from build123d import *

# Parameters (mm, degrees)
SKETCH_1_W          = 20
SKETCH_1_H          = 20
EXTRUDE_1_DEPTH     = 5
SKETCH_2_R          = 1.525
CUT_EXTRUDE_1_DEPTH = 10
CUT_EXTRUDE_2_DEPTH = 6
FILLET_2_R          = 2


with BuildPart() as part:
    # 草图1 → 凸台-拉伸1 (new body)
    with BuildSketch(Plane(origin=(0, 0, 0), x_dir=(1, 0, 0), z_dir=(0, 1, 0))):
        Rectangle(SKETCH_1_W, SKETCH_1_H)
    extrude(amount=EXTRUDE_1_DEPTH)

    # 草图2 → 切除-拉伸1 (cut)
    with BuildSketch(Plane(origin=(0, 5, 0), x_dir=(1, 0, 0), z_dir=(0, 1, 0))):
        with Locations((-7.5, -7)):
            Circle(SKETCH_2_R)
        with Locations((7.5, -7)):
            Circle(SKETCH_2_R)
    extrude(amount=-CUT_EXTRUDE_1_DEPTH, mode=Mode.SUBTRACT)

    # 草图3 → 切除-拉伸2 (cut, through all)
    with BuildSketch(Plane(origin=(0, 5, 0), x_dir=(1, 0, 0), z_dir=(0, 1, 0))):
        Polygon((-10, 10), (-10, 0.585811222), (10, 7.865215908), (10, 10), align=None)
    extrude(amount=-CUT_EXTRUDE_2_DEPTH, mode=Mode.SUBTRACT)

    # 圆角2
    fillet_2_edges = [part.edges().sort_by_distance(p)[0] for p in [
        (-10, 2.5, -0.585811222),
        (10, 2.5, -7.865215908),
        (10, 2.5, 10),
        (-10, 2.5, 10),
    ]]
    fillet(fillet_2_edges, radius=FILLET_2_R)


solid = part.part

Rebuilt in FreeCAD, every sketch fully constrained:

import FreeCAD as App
import Part
import Sketcher
from FreeCAD import Vector
Q = App.Units.Quantity


def edges_at(feature, points):
    """Names of the edges that pass closest to the given points."""
    edges = feature.Shape.Edges
    near = lambda p: min(range(len(edges)), key=lambda i: edges[i].distToShape(Part.Vertex(*p))[0])
    return sorted({f"Edge{near(p) + 1}" for p in points})


def add_polygon(sketch, points):
    """Adds a closed chain of lines whose ends are joined by coincident constraints."""
    first, n = sketch.GeometryCount, len(points)
    for a, b in zip(points, points[1:] + points[:1]):
        sketch.addGeometry(Part.LineSegment(App.Vector(*a, 0), App.Vector(*b, 0)), False)
    for i in range(n):
        sketch.addConstraint(Sketcher.Constraint("Coincident", first + i, 2, first + (i + 1) % n, 1))

doc = App.newDocument("Part")
body = doc.addObject("PartDesign::Body", "Body")

sketch1 = body.newObject("Sketcher::SketchObject", "Sketch")
sketch1.AttachmentSupport = (doc.getObject("XZ_Plane"), [""])
sketch1.MapMode = "FlatFace"
add_polygon(sketch1, [(-10, -10), (-10, 10), (10, 10), (10, -10)])
sketch1.addConstraint(Sketcher.Constraint("Vertical", 0))
sketch1.addConstraint(Sketcher.Constraint("Horizontal", 1))
sketch1.addConstraint(Sketcher.Constraint("Vertical", 2))
sketch1.addConstraint(Sketcher.Constraint("Horizontal", 3))
sketch1.addConstraint(Sketcher.Constraint("Symmetric", 0, 2, 2, 2, -1, 1))
sketch1.addConstraint(Sketcher.Constraint("Equal", 3, 0))
sketch1.addConstraint(Sketcher.Constraint("DistanceX", 1, 1, 1, 2, 20.0))
pad1 = body.newObject("PartDesign::Pad", "Pad")
pad1.Profile = sketch1
pad1.Length = 5
pad1.Reversed = True

sketch2 = body.newObject("Sketcher::SketchObject", "Sketch001")
sketch2.AttachmentSupport = (doc.getObject("XZ_Plane"), [""])
sketch2.MapMode = "FlatFace"
sketch2.AttachmentOffset = App.Placement(Vector(0, 0, -5), App.Rotation())
sketch2.addGeometry(Part.Circle(Vector(-7.5, 7, 0), Vector(0, 0, 1), 1.525), False)
sketch2.addGeometry(Part.Circle(Vector(7.5, 7, 0), Vector(0, 0, 1), 1.525), False)
sketch2.addConstraint(Sketcher.Constraint("Equal", 0, 1))
sketch2.addConstraint(Sketcher.Constraint("Symmetric", 0, 3, 1, 3, -2))
sketch2.addConstraint(Sketcher.Constraint("Diameter", 0, 3.05))
sketch2.addConstraint(Sketcher.Constraint("DistanceY", -1, 1, 0, 3, 7.0))
sketch2.addConstraint(Sketcher.Constraint("DistanceX", 0, 3, 1, 3, 15.0))
pocket1 = body.newObject("PartDesign::Pocket", "Pocket")
pocket1.Profile = sketch2
pocket1.Length = 10
pocket1.Reversed = True

sketch3 = body.newObject("Sketcher::SketchObject", "Sketch002")
sketch3.AttachmentSupport = (doc.getObject("XZ_Plane"), [""])
sketch3.MapMode = "FlatFace"
sketch3.AttachmentOffset = App.Placement(Vector(0, 0, -5), App.Rotation())
add_polygon(sketch3, [(-10, -10), (-10, -0.585811), (10, -7.865216), (10, -10)])
sketch3.addConstraint(Sketcher.Constraint("Vertical", 0))
sketch3.addConstraint(Sketcher.Constraint("Vertical", 2))
sketch3.addConstraint(Sketcher.Constraint("Horizontal", 3))
sketch3.addConstraint(Sketcher.Constraint("DistanceX", 3, 2, 3, 1, 20.0))
sketch3.addConstraint(Sketcher.Constraint("Angle", 1, Q("-20 deg")))
sketch3.addConstraint(Sketcher.Constraint("DistanceX", 0, 2, -1, 1, 10.0))
sketch3.addConstraint(Sketcher.Constraint("DistanceY", 2, 2, -1, 1, 10.0))
sketch3.addConstraint(Sketcher.Constraint("DistanceY", 0, 1, 0, 2, 9.414189))
pocket2 = body.newObject("PartDesign::Pocket", "Pocket001")
pocket2.Profile = sketch3
pocket2.Type = "ThroughAll"
pocket2.Reversed = True
doc.recompute()

fillet = body.newObject("PartDesign::Fillet", "Fillet")
fillet.Base = (pocket2, edges_at(pocket2, [
    (-10, 2.5, -0.586),
    (10, 2.5, -7.865),
    (10, 2.5, 10),
    (-10, 2.5, 10),
]))
fillet.Radius = 2

doc.recompute()
